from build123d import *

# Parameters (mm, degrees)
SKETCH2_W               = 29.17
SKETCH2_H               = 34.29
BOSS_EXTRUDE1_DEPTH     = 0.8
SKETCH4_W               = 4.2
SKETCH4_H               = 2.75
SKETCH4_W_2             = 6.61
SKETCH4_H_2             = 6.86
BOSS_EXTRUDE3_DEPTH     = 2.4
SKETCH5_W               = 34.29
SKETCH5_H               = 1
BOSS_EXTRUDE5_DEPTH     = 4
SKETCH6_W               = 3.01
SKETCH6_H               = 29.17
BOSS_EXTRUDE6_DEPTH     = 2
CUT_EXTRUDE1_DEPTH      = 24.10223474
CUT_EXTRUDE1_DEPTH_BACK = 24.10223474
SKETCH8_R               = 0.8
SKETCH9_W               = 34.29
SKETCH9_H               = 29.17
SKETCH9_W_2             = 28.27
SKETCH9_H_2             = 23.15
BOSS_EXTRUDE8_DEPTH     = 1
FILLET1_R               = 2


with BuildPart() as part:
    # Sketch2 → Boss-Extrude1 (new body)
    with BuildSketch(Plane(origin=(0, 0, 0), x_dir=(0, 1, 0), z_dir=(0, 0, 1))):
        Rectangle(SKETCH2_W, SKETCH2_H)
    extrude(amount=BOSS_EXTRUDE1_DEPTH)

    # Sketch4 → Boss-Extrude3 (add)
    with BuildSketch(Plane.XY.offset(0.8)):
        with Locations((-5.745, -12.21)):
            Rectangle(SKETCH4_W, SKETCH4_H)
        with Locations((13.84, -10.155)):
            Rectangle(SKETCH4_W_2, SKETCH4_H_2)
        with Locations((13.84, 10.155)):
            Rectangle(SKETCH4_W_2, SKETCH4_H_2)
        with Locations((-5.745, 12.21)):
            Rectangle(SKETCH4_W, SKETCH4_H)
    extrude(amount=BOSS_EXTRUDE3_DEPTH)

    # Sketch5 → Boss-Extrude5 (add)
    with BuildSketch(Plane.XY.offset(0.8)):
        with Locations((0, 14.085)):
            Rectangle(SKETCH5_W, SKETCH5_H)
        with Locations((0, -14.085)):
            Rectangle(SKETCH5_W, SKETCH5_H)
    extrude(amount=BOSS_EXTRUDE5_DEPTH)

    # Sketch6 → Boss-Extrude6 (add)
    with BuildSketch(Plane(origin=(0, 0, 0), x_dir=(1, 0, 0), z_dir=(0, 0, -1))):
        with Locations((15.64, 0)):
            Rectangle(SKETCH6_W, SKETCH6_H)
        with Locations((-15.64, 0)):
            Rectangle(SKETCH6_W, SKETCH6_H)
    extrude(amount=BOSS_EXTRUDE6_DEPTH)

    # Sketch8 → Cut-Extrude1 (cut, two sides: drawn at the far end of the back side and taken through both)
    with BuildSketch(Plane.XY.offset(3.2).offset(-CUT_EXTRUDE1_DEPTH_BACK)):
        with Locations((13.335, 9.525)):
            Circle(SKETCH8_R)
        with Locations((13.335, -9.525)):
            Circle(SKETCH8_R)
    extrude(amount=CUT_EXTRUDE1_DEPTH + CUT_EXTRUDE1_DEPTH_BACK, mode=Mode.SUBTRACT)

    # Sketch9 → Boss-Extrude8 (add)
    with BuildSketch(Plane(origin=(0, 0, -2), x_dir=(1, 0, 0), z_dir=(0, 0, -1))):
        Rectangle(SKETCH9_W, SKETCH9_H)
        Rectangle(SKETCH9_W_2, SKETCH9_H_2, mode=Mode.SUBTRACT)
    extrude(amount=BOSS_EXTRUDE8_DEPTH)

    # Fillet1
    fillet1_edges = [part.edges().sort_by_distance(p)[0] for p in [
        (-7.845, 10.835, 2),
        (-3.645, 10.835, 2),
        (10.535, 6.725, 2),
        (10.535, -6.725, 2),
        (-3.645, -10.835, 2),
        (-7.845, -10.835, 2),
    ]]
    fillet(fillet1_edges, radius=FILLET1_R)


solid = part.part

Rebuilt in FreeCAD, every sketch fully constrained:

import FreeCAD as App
import Part
import Sketcher
Q = App.Units.Quantity


def edges_at(feature, points):
    """Names of the edges that pass closest to the given points."""
    edges = feature.Shape.Edges
    near = lambda p: min(range(len(edges)), key=lambda i: edges[i].distToShape(Part.Vertex(*p))[0])
    return sorted({f"Edge{near(p) + 1}" for p in points})


def add_polygon(sketch, points):
    """Adds a closed chain of lines whose ends are joined by coincident constraints."""
    first, n = sketch.GeometryCount, len(points)
    for a, b in zip(points, points[1:] + points[:1]):
        sketch.addGeometry(Part.LineSegment(App.Vector(*a, 0), App.Vector(*b, 0)), False)
    for i in range(n):
        sketch.addConstraint(Sketcher.Constraint("Coincident", first + i, 2, first + (i + 1) % n, 1))

doc = App.newDocument("Part")
body = doc.addObject("PartDesign::Body", "Body")

# Sketch on XY plane
sketch1 = body.newObject("Sketcher::SketchObject", "Sketch")
sketch1.AttachmentSupport = (doc.getObject("XY_Plane"), [""])
sketch1.MapMode = "FlatFace"
add_polygon(sketch1, [(-17, -15), (17, -15), (17, 15), (-17, 15)])  # lines 0-3
sketch1.addConstraint([
    Sketcher.Constraint("Horizontal", 0),
    Sketcher.Constraint("Vertical", 1),
    Sketcher.Constraint("Horizontal", 2),
    Sketcher.Constraint("Vertical", 3),
    Sketcher.Constraint("Symmetric", 0, 2, 2, 2, -1, 1),
    Sketcher.Constraint("DistanceX", 0, 1, 0, 2, Q("34.29 mm")),
    Sketcher.Constraint("DistanceY", 1, 1, 1, 2, Q("29.17 mm")),
])
pad1 = body.newObject("PartDesign::Pad", "Pad")
pad1.Profile = sketch1
pad1.Length = 0.8

# Sketch on XY plane
sketch2 = body.newObject("Sketcher::SketchObject", "Sketch001")
sketch2.AttachmentSupport = (doc.getObject("XY_Plane"), [""])
sketch2.MapMode = "FlatFace"
sketch2.AttachmentOffset = App.Placement(App.Vector(0, 0, 0.8), App.Rotation())
add_polygon(sketch2, [(-7.8, -10.8), (-7.8, -13.6), (-3.6, -13.6), (-3.6, -10.8)])  # lines 0-3
add_polygon(sketch2, [(10.5, -6.7), (10.5, -13.6), (17.1, -13.6), (17.1, -6.7)])  # lines 4-7
add_polygon(sketch2, [(10.5, 13.6), (10.5, 6.7), (17.1, 6.7), (17.1, 13.6)])  # lines 8-11
add_polygon(sketch2, [(-7.8, 13.6), (-7.8, 10.8), (-3.6, 10.8), (-3.6, 13.6)])  # lines 12-15
sketch2.addConstraint([
    Sketcher.Constraint("Vertical", 0),
    Sketcher.Constraint("Horizontal", 1),
    Sketcher.Constraint("Vertical", 2),
    Sketcher.Constraint("Horizontal", 3),
    Sketcher.Constraint("Vertical", 4),
    Sketcher.Constraint("Horizontal", 5),
    Sketcher.Constraint("Vertical", 6),
    Sketcher.Constraint("Horizontal", 7),
    Sketcher.Constraint("Vertical", 8),
    Sketcher.Constraint("Horizontal", 9),
    Sketcher.Constraint("Vertical", 10),
    Sketcher.Constraint("Horizontal", 11),
    Sketcher.Constraint("Vertical", 12),
    Sketcher.Constraint("Horizontal", 13),
    Sketcher.Constraint("Vertical", 14),
    Sketcher.Constraint("Horizontal", 15),
    Sketcher.Constraint("Symmetric", 7, 2, 8, 2, -1),
    Sketcher.Constraint("Symmetric", 5, 2, 10, 2, -1),
    Sketcher.Constraint("Symmetric", 3, 2, 12, 2, -1),
    Sketcher.Constraint("Symmetric", 1, 2, 14, 2, -1),
    Sketcher.Constraint("Horizontal", 1, 2, 4, 2),
    Sketcher.Constraint("DistanceX", 1, 1, 1, 2, Q("4.2 mm")),
    Sketcher.Constraint("DistanceX", 5, 1, 5, 2, Q("6.61 mm")),
    Sketcher.Constraint("DistanceY", 0, 2, 0, 1, Q("2.75 mm")),
    Sketcher.Constraint("DistanceY", 4, 2, 4, 1, Q("6.86 mm")),
    Sketcher.Constraint("DistanceX", 1, 2, 4, 2, Q("14.18 mm")),
    Sketcher.Constraint("DistanceY", 7, 2, 8, 2, Q("13.45 mm")),
    Sketcher.Constraint("DistanceX", 0, 2, -1, 1, Q("7.845 mm")),
])
pad2 = body.newObject("PartDesign::Pad", "Pad001")
pad2.Profile = sketch2
pad2.Length = 2.4

# Sketch on XY plane
sketch3 = body.newObject("Sketcher::SketchObject", "Sketch002")
sketch3.AttachmentSupport = (doc.getObject("XY_Plane"), [""])
sketch3.MapMode = "FlatFace"
sketch3.AttachmentOffset = App.Placement(App.Vector(0, 0, 0.8), App.Rotation())
add_polygon(sketch3, [(-17.1, 14.6), (-17.1, 13.6), (17.1, 13.6), (17.1, 14.6)])  # lines 0-3
add_polygon(sketch3, [(-17.1, -13.6), (-17.1, -14.6), (17.1, -14.6), (17.1, -13.6)])  # lines 4-7
sketch3.addConstraint([
    Sketcher.Constraint("Vertical", 0),
    Sketcher.Constraint("Horizontal", 1),
    Sketcher.Constraint("Vertical", 2),
    Sketcher.Constraint("Horizontal", 3),
    Sketcher.Constraint("Vertical", 4),
    Sketcher.Constraint("Horizontal", 5),
    Sketcher.Constraint("Vertical", 6),
    Sketcher.Constraint("Horizontal", 7),
    Sketcher.Constraint("Symmetric", 2, 2, 4, 2, -1, 1),
    Sketcher.Constraint("Symmetric", 0, 2, 6, 2, -1, 1),
    Sketcher.Constraint("Vertical", 3, 2, 4, 2),
    Sketcher.Constraint("DistanceY", 0, 2, 0, 1, Q("1 mm")),
    Sketcher.Constraint("DistanceX", 1, 1, 1, 2, Q("34.29 mm")),
    Sketcher.Constraint("DistanceY", 4, 2, 0, 2, Q("28.17 mm")),
])
pad3 = body.newObject("PartDesign::Pad", "Pad002")
pad3.Profile = sketch3
pad3.Length = 4

# Sketch on XY plane
sketch4 = body.newObject("Sketcher::SketchObject", "Sketch003")
sketch4.AttachmentSupport = (doc.getObject("XY_Plane"), [""])
sketch4.MapMode = "FlatFace"
add_polygon(sketch4, [(14.1, -14.6), (14.1, 14.6), (17.1, 14.6), (17.1, -14.6)])  # lines 0-3
add_polygon(sketch4, [(-17.1, -14.6), (-17.1, 14.6), (-14.1, 14.6), (-14.1, -14.6)])  # lines 4-7
sketch4.addConstraint([
    Sketcher.Constraint("Vertical", 0),
    Sketcher.Constraint("Horizontal", 1),
    Sketcher.Constraint("Vertical", 2),
    Sketcher.Constraint("Horizontal", 3),
    Sketcher.Constraint("Vertical", 4),
    Sketcher.Constraint("Horizontal", 5),
    Sketcher.Constraint("Vertical", 6),
    Sketcher.Constraint("Horizontal", 7),
    Sketcher.Constraint("Symmetric", 2, 2, 4, 2, -1, 1),
    Sketcher.Constraint("Symmetric", 0, 2, 6, 2, -1, 1),
    Sketcher.Constraint("Horizontal", 1, 2, 4, 2),
    Sketcher.Constraint("DistanceX", 1, 1, 1, 2, Q("3.01 mm")),
    Sketcher.Constraint("DistanceY", 0, 1, 0, 2, Q("29.17 mm")),
    Sketcher.Constraint("DistanceX", 4, 2, 0, 2, Q("31.28 mm")),
])
pad4 = body.newObject("PartDesign::Pad", "Pad003")
pad4.Profile = sketch4
pad4.Length = 2
pad4.Reversed = True

# Sketch on XY plane
sketch5 = body.newObject("Sketcher::SketchObject", "Sketch004")
sketch5.AttachmentSupport = (doc.getObject("XY_Plane"), [""])
sketch5.MapMode = "FlatFace"
sketch5.AttachmentOffset = App.Placement(App.Vector(0, 0, 3.2), App.Rotation())
sketch5.addGeometry([
    Part.Circle(App.Vector(13.3, 9.5, 0), App.Vector(0, 0, 1), 0.8),
    Part.Circle(App.Vector(13.3, -9.5, 0), App.Vector(0, 0, 1), 0.8),
], False)
sketch5.addConstraint([
    Sketcher.Constraint("Equal", 0, 1),
    Sketcher.Constraint("Symmetric", 0, 3, 1, 3, -1),
    Sketcher.Constraint("Diameter", 0, Q("1.6 mm")),
    Sketcher.Constraint("DistanceY", 1, 3, 0, 3, Q("19.05 mm")),
    Sketcher.Constraint("DistanceX", -1, 1, 0, 3, Q("13.335 mm")),
])
pocket1 = body.newObject("PartDesign::Pocket", "Pocket")
pocket1.Profile = sketch5
pocket1.Type = "ThroughAll"
pocket1.Midplane = True

# Sketch on XY plane
sketch6 = body.newObject("Sketcher::SketchObject", "Sketch005")
sketch6.AttachmentSupport = (doc.getObject("XY_Plane"), [""])
sketch6.MapMode = "FlatFace"
sketch6.AttachmentOffset = App.Placement(App.Vector(0, 0, -2), App.Rotation())
add_polygon(sketch6, [(-17, -15), (-17, 15), (17, 15), (17, -15)])  # lines 0-3
add_polygon(sketch6, [(14, 12), (-14, 12), (-14, -12), (14, -12)])  # lines 4-7
sketch6.addConstraint([
    Sketcher.Constraint("Vertical", 0),
    Sketcher.Constraint("Horizontal", 1),
    Sketcher.Constraint("Vertical", 2),
    Sketcher.Constraint("Horizontal", 3),
    Sketcher.Constraint("Horizontal", 4),
    Sketcher.Constraint("Vertical", 5),
    Sketcher.Constraint("Horizontal", 6),
    Sketcher.Constraint("Vertical", 7),
    Sketcher.Constraint("Symmetric", 0, 2, 2, 2, -1, 1),
    Sketcher.Constraint("Symmetric", 4, 2, 6, 2, -1, 1),
    Sketcher.Constraint("DistanceX", 1, 1, 1, 2, Q("34.29 mm")),
    Sketcher.Constraint("DistanceX", 4, 2, 4, 1, Q("28.27 mm")),
    Sketcher.Constraint("DistanceY", 0, 1, 0, 2, Q("29.17 mm")),
    Sketcher.Constraint("DistanceY", 5, 2, 5, 1, Q("23.15 mm")),
])
pad5 = body.newObject("PartDesign::Pad", "Pad004")
pad5.Profile = sketch6
pad5.Length = 1
pad5.Reversed = True
doc.recompute()

fillet = body.newObject("PartDesign::Fillet", "Fillet")
fillet.Base = (pad5, edges_at(pad5, [
    (-7.845, 10.835, 2),
    (-3.645, 10.835, 2),
    (10.535, 6.725, 2),
    (10.535, -6.725, 2),
    (-3.645, -10.835, 2),
    (-7.845, -10.835, 2),
]))
fillet.Radius = 2

doc.recompute()
